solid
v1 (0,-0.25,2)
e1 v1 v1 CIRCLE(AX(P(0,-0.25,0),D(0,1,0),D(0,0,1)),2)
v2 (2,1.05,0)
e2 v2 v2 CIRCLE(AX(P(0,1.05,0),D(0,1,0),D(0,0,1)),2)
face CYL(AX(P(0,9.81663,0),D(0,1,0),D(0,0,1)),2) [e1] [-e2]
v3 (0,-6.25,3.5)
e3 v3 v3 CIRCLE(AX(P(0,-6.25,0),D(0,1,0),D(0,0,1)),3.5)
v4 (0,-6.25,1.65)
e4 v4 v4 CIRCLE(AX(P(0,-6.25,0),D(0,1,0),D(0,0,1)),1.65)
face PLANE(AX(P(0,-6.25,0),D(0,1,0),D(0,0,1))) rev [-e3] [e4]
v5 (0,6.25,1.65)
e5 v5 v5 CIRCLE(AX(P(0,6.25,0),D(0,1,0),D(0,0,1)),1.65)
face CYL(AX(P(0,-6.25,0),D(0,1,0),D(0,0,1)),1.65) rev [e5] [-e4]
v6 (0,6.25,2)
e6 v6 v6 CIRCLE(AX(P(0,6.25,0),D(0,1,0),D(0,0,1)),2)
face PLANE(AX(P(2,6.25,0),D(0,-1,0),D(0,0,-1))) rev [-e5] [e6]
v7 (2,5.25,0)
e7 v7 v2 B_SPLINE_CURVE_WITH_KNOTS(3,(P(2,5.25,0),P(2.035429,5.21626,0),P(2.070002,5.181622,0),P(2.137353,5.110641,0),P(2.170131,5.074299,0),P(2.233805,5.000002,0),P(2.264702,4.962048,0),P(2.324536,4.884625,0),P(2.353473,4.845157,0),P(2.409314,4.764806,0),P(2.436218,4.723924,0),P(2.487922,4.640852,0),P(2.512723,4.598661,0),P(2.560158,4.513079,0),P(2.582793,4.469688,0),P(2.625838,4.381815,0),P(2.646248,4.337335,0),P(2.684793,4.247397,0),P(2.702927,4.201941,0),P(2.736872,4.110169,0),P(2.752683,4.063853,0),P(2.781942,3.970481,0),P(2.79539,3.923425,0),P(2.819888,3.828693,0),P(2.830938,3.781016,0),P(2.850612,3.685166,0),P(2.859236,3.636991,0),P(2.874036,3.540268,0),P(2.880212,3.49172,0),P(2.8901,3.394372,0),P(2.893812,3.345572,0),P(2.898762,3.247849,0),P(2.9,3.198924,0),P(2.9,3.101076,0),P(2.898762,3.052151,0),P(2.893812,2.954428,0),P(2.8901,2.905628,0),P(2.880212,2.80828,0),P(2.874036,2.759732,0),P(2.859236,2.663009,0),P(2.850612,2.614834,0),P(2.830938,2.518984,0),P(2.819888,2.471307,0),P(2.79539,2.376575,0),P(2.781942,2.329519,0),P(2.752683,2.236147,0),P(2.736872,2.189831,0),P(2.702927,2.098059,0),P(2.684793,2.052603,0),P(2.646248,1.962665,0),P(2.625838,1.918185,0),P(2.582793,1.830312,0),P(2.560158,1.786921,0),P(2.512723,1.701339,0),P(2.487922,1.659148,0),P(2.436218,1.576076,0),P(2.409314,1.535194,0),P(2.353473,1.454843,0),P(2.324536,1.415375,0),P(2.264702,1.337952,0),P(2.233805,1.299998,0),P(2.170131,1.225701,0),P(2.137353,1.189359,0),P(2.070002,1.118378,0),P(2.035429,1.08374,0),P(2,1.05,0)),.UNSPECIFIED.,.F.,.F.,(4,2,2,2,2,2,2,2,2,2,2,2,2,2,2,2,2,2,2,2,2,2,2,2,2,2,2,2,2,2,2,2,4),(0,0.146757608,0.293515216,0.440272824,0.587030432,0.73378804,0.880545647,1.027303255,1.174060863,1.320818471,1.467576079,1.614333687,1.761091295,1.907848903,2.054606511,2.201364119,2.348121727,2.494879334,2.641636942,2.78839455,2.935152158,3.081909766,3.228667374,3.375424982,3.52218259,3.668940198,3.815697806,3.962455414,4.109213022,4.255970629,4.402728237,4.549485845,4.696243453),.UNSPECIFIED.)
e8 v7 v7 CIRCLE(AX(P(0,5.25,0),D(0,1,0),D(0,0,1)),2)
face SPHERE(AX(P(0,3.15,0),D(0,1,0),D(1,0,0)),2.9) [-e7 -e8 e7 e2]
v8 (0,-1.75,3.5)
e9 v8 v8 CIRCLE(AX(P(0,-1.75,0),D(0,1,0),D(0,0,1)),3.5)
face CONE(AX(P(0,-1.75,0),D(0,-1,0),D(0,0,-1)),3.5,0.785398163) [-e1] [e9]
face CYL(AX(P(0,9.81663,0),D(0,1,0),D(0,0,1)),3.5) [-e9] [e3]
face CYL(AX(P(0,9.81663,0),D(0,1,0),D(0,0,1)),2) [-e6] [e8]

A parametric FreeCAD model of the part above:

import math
import FreeCAD as App
import Part
import Sketcher
from FreeCAD import Vector
Q = App.Units.Quantity

doc = App.newDocument("Part")
params = doc.addObject("Spreadsheet::Sheet", "Params")
for row, (alias, value) in enumerate([
    ("sketch1_radius", "2.9 mm"),
    ("sketch1_width", "2 mm"),
    ("sketch1_height", "1 mm"),
    ("sketch1_width2", "3.5 mm"),
    ("sketch1_height2", "12.5 mm"),
    ("revolution_angle", "360 deg"),
    ("sketch2_diameter", "3.3 mm"),
    ("pocket1_length", "12.5 mm"),
], start=1):
    params.set(f"A{row}", alias)
    params.set(f"B{row}", "=" + value)
    params.setAlias(f"B{row}", alias)

body = doc.addObject("PartDesign::Body", "Body")

# Sketch on XY plane
sketch1 = body.newObject("Sketcher::SketchObject", "Sketch")
sketch1.AttachmentSupport = (doc.getObject("XY_Plane"), [""])
sketch1.MapMode = "FlatFace"
sketch1.addGeometry(Part.LineSegment(Vector(0, 6.2, 0), Vector(0, -6.2, 0)), False)
sketch1.addGeometry(Part.LineSegment(Vector(0, -6.2, 0), Vector(3.5, -6.2, 0)), False)
sketch1.addGeometry(Part.LineSegment(Vector(3.5, -6.2, 0), Vector(3.5, -1.8, 0)), False)
sketch1.addGeometry(Part.LineSegment(Vector(3.5, -1.8, 0), Vector(2, -0.2, 0)), False)
sketch1.addGeometry(Part.LineSegment(Vector(2, -0.2, 0), Vector(2, 1.1, 0)), False)
sketch1.addGeometry(Part.ArcOfCircle(Part.Circle(Vector(0, 3.1, 0), Vector(0, 0, 1), 2.9), math.radians(-46), math.radians(46)), False)
sketch1.addGeometry(Part.LineSegment(Vector(2, 5.2, 0), Vector(2, 6.2, 0)), False)
sketch1.addGeometry(Part.LineSegment(Vector(2, 6.2, 0), Vector(0, 6.2, 0)), False)
sketch1.addConstraint(Sketcher.Constraint("Coincident", 0, 2, 1, 1))
sketch1.addConstraint(Sketcher.Constraint("Coincident", 1, 2, 2, 1))
sketch1.addConstraint(Sketcher.Constraint("Coincident", 2, 2, 3, 1))
sketch1.addConstraint(Sketcher.Constraint("Coincident", 3, 2, 4, 1))
sketch1.addConstraint(Sketcher.Constraint("Coincident", 4, 2, 5, 1))
sketch1.addConstraint(Sketcher.Constraint("Coincident", 5, 2, 6, 1))
sketch1.addConstraint(Sketcher.Constraint("Coincident", 6, 2, 7, 1))
sketch1.addConstraint(Sketcher.Constraint("Coincident", 7, 2, 0, 1))
sketch1.addConstraint(Sketcher.Constraint("Vertical", 0))
sketch1.addConstraint(Sketcher.Constraint("Horizontal", 1))
sketch1.addConstraint(Sketcher.Constraint("Vertical", 2))
sketch1.addConstraint(Sketcher.Constraint("Vertical", 4))
sketch1.addConstraint(Sketcher.Constraint("Vertical", 6))
sketch1.addConstraint(Sketcher.Constraint("Horizontal", 7))
sketch1.addConstraint(Sketcher.Constraint("Symmetric", 0, 2, 7, 2, -1, 1))
sketch1.addConstraint(Sketcher.Constraint("PointOnObject", 5, 3, -2))
sketch1.addConstraint(Sketcher.Constraint("Vertical", 4, 2, 5, 2))
sketch1.addConstraint(Sketcher.Constraint("Radius", 5, 2.9))
sketch1.addConstraint(Sketcher.Constraint("DistanceX", 7, 2, 7, 1, 2.0))
sketch1.addConstraint(Sketcher.Constraint("DistanceY", 6, 1, 6, 2, 1.0))
sketch1.addConstraint(Sketcher.Constraint("Angle", 3, Q("135 deg")))
sketch1.addConstraint(Sketcher.Constraint("DistanceX", 1, 1, 1, 2, 3.5))
sketch1.addConstraint(Sketcher.Constraint("DistanceY", 0, 2, 0, 1, 12.5))
sketch1.addConstraint(Sketcher.Constraint("DistanceY", 2, 1, 2, 2, 4.5))
sketch1.setExpression("Constraints[17]", "Params.sketch1_radius")
sketch1.setExpression("Constraints[18]", "Params.sketch1_width")
sketch1.setExpression("Constraints[19]", "Params.sketch1_height")
sketch1.setExpression("Constraints[21]", "Params.sketch1_width2")
sketch1.setExpression("Constraints[22]", "Params.sketch1_height2")
revolution = body.newObject("PartDesign::Revolution", "Revolution")
revolution.Profile = sketch1
revolution.ReferenceAxis = (sketch1, ["V_Axis"])
revolution.setExpression("Angle", "Params.revolution_angle")

# Sketch on XZ plane
sketch2 = body.newObject("Sketcher::SketchObject", "Sketch001")
sketch2.AttachmentSupport = (doc.getObject("XZ_Plane"), [""])
sketch2.MapMode = "FlatFace"
sketch2.AttachmentOffset = App.Placement(Vector(0, 0, -6.25), App.Rotation())
sketch2.addGeometry(Part.Circle(Vector(0, 0, 0), Vector(0, 0, 1), 1.6), False)
sketch2.addConstraint(Sketcher.Constraint("Coincident", 0, 3, -1, 1))
sketch2.addConstraint(Sketcher.Constraint("Diameter", 0, 3.3))
sketch2.setExpression("Constraints[1]", "Params.sketch2_diameter")
pocket1 = body.newObject("PartDesign::Pocket", "Pocket")
pocket1.Profile = sketch2
pocket1.setExpression("Length", "Params.pocket1_length")
pocket1.Reversed = True

doc.recompute()
